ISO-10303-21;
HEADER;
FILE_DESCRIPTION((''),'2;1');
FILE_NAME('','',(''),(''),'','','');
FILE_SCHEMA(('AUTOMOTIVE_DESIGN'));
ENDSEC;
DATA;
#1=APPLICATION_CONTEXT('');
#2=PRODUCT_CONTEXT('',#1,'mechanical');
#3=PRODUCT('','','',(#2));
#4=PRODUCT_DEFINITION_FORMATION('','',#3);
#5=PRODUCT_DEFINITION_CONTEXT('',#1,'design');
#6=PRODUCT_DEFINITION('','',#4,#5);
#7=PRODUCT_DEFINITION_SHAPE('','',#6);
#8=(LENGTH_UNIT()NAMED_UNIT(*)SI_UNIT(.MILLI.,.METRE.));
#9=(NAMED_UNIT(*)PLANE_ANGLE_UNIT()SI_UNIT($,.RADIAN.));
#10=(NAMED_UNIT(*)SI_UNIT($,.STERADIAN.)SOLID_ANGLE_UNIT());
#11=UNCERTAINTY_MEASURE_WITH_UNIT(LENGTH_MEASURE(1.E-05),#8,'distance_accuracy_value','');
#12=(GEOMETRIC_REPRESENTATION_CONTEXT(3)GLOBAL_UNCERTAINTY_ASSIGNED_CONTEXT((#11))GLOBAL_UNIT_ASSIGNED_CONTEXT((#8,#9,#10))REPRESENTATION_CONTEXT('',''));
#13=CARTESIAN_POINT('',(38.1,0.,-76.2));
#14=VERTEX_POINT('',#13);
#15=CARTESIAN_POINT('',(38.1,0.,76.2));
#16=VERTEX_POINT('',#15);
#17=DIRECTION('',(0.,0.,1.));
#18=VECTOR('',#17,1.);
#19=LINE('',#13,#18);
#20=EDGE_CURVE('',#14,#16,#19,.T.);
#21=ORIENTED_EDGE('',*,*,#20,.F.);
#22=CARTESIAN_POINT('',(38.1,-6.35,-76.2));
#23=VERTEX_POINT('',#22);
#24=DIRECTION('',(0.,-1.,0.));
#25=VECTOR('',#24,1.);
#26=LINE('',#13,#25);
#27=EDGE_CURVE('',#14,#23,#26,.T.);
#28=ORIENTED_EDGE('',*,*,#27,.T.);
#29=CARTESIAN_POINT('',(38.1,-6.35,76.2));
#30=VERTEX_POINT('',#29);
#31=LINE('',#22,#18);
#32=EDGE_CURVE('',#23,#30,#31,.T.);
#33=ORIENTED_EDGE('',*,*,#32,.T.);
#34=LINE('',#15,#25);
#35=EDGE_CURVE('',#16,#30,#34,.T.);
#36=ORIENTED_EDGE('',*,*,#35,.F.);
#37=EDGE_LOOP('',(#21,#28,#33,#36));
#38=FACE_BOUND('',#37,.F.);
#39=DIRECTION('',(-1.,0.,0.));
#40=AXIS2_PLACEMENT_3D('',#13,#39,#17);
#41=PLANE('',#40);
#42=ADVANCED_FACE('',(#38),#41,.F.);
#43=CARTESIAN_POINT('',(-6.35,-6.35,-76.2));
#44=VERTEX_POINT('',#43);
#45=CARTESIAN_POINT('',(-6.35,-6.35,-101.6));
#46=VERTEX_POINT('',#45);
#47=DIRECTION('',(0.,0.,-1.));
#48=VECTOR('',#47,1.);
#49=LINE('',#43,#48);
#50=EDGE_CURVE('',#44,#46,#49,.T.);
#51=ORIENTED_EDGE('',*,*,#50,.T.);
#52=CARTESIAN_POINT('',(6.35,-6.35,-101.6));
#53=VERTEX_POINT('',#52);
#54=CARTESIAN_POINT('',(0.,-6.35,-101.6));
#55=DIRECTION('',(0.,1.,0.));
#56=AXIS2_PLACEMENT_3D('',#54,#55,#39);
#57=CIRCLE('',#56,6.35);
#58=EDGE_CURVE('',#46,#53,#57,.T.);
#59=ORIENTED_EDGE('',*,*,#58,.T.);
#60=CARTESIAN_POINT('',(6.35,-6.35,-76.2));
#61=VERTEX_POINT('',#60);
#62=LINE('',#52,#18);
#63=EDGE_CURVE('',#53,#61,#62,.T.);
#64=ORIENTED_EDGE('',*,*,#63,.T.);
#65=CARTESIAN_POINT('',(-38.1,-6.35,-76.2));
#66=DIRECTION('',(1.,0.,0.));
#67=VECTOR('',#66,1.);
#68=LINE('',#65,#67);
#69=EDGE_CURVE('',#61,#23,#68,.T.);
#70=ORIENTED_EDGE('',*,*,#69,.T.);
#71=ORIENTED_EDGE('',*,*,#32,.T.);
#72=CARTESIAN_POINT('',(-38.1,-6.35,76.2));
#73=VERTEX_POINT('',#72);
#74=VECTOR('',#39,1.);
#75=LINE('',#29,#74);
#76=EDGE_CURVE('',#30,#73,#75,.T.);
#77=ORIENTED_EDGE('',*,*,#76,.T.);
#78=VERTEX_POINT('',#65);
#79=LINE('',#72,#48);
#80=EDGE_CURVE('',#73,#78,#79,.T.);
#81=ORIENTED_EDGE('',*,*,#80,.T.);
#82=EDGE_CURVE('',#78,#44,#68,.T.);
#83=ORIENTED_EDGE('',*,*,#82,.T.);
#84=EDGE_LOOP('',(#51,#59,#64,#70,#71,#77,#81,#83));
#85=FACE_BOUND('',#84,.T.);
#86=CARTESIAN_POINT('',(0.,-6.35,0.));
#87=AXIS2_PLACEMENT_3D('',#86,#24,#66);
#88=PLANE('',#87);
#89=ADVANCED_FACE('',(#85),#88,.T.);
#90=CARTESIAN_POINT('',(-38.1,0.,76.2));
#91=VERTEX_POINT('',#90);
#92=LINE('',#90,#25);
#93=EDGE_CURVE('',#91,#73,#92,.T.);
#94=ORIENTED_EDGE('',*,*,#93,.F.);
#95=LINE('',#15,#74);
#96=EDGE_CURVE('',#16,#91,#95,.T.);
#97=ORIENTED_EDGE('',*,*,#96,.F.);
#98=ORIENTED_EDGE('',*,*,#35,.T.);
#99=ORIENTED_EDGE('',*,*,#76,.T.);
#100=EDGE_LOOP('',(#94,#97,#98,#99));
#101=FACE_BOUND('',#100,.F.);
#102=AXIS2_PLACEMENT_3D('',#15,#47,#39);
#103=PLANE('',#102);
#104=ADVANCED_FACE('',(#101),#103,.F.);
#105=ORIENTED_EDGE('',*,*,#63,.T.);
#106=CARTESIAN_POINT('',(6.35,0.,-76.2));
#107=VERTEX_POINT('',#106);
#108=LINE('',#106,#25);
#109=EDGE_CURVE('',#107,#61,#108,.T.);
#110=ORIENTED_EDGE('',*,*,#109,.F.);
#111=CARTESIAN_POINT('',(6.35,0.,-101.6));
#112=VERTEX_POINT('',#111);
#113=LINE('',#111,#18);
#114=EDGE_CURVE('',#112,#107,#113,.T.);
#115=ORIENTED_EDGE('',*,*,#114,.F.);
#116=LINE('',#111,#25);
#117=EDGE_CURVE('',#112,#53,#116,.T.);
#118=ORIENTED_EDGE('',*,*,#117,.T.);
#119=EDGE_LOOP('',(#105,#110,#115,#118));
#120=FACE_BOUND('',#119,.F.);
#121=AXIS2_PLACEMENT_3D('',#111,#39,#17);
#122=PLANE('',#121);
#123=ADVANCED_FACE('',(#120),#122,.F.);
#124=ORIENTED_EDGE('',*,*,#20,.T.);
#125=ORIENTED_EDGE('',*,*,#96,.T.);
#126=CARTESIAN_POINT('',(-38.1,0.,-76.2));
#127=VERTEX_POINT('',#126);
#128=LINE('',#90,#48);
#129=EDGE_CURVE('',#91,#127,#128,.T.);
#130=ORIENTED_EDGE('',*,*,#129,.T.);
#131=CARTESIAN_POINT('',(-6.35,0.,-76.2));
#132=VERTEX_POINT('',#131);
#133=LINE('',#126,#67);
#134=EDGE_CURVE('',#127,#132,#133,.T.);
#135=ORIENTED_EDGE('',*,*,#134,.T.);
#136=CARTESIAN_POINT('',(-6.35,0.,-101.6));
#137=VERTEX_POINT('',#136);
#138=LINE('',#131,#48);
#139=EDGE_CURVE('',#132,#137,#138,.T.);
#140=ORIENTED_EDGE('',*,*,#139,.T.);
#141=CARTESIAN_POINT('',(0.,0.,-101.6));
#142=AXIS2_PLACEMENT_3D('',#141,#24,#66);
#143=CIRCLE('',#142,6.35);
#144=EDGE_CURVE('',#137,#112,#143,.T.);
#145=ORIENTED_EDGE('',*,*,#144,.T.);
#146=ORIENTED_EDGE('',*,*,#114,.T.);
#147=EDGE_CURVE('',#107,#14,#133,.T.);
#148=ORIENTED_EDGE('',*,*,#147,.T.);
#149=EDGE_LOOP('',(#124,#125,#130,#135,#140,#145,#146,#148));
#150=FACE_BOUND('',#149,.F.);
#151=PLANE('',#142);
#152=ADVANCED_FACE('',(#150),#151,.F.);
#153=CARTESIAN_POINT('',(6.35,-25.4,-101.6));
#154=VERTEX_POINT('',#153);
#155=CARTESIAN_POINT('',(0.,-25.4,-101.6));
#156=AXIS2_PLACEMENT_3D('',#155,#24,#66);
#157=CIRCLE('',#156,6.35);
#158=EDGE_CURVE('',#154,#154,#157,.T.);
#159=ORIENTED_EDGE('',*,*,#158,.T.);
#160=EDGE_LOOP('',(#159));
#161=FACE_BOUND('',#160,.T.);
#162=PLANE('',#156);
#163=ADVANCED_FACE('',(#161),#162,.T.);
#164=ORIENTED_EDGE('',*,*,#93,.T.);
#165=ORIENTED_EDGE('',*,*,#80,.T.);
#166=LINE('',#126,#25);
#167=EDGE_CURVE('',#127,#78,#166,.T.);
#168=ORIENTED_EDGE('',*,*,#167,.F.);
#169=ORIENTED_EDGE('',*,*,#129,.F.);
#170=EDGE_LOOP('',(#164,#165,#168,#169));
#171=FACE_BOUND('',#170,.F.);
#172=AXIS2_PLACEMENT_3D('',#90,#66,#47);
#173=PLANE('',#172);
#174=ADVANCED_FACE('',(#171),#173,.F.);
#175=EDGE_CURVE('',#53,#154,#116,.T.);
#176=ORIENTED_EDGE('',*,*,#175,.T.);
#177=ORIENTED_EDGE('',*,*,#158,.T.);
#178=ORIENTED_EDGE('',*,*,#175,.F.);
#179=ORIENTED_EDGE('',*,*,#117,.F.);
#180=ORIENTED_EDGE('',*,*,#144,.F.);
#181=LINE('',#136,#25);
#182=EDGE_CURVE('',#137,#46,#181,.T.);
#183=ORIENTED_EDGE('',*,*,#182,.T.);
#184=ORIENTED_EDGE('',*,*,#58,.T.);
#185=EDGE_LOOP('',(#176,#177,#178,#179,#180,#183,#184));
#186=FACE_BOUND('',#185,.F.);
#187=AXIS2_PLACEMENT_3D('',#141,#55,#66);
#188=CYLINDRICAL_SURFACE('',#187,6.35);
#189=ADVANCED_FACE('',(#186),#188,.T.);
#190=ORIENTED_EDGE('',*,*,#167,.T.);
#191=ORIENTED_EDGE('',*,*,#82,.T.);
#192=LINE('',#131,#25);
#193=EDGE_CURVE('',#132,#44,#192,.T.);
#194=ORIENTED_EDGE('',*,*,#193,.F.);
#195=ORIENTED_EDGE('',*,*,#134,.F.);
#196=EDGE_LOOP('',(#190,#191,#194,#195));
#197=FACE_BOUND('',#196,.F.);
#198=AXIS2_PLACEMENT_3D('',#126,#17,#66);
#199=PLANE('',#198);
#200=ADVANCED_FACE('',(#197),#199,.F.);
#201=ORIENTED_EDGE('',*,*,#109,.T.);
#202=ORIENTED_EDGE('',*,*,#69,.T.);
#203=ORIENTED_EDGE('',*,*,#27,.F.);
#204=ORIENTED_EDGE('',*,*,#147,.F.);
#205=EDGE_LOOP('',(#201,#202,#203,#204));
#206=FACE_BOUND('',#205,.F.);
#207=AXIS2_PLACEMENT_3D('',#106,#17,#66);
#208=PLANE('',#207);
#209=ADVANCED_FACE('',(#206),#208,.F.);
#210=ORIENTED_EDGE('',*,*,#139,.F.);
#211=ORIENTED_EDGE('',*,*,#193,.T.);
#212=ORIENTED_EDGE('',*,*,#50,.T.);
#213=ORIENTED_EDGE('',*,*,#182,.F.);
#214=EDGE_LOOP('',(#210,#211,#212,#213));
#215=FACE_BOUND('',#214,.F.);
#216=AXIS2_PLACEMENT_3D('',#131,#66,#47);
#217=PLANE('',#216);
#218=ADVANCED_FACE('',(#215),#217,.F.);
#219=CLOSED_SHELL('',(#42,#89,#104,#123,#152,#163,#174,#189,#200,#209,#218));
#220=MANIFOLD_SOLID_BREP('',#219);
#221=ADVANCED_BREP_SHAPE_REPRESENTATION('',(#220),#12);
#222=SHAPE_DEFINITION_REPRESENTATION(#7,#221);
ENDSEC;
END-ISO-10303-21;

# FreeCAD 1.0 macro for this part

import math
import FreeCAD as App
import Part
import Sketcher

V = App.Vector
Q = App.Units.Quantity

doc = App.newDocument("Part")
body = doc.addObject("PartDesign::Body", "Body")

# Sketch on XZ plane
sketch1 = body.newObject("Sketcher::SketchObject", "Sketch")
sketch1.AttachmentSupport = (doc.getObject("XZ_Plane"), [""])
sketch1.MapMode = "FlatFace"
sketch1.addGeometry([
    Part.LineSegment(V(38, -76, 0), V(38, 76, 0)),  # 0
    Part.LineSegment(V(38, 76, 0), V(-38, 76, 0)),  # 1
    Part.LineSegment(V(-38, 76, 0), V(-38, -76, 0)),  # 2
    Part.LineSegment(V(-38, -76, 0), V(-6, -76, 0)),  # 3
    Part.LineSegment(V(-6, -76, 0), V(-6, -102, 0)),  # 4
    Part.ArcOfCircle(Part.Circle(V(0, -102, 0), V(0, 0, 1), 6), math.radians(0), math.radians(180)),  # 5
    Part.LineSegment(V(6, -102, 0), V(6, -76, 0)),  # 6
    Part.LineSegment(V(6, -76, 0), V(38, -76, 0)),  # 7
], False)
sketch1.addConstraint([
    Sketcher.Constraint("Coincident", 0, 2, 1, 1),
    Sketcher.Constraint("Coincident", 1, 2, 2, 1),
    Sketcher.Constraint("Coincident", 2, 2, 3, 1),
    Sketcher.Constraint("Coincident", 3, 2, 4, 1),
    Sketcher.Constraint("Tangent", 4, 2, 5, 2),
    Sketcher.Constraint("Tangent", 5, 1, 6, 1),
    Sketcher.Constraint("Coincident", 6, 2, 7, 1),
    Sketcher.Constraint("Coincident", 7, 2, 0, 1),
    Sketcher.Constraint("Vertical", 0),
    Sketcher.Constraint("Horizontal", 1),
    Sketcher.Constraint("Vertical", 2),
    Sketcher.Constraint("Horizontal", 3),
    Sketcher.Constraint("Vertical", 4),
    Sketcher.Constraint("Vertical", 6),
    Sketcher.Constraint("Horizontal", 7),
    Sketcher.Constraint("Symmetric", 0, 2, 2, 2, -1, 1),
    Sketcher.Constraint("Symmetric", 3, 2, 6, 2, -2),
    Sketcher.Constraint("DistanceX", 1, 2, 1, 1, Q("3 in")),
    Sketcher.Constraint("DistanceY", 0, 1, 0, 2, Q("6 in")),
    Sketcher.Constraint("DistanceY", 4, 2, 4, 1, Q("1 in")),
    Sketcher.Constraint("Radius", 5, Q("0.25 in")),
])
pad1 = body.newObject("PartDesign::Pad", "Pad")
pad1.Profile = sketch1
pad1.Length = Q("0.25 in")

# Sketch on XZ plane
sketch2 = body.newObject("Sketcher::SketchObject", "Sketch001")
sketch2.AttachmentSupport = (doc.getObject("XZ_Plane"), [""])
sketch2.MapMode = "FlatFace"
sketch2.addGeometry(Part.Circle(V(0, -102, 0), V(0, 0, 1), 6), False)
sketch2.addConstraint([
    Sketcher.Constraint("PointOnObject", 0, 3, -2),
    Sketcher.Constraint("Diameter", 0, Q("0.5 in")),
    Sketcher.Constraint("DistanceY", 0, 3, -1, 1, Q("4 in")),
])
pad2 = body.newObject("PartDesign::Pad", "Pad001")
pad2.Profile = sketch2
pad2.Length = Q("1 in")

doc.recompute()
